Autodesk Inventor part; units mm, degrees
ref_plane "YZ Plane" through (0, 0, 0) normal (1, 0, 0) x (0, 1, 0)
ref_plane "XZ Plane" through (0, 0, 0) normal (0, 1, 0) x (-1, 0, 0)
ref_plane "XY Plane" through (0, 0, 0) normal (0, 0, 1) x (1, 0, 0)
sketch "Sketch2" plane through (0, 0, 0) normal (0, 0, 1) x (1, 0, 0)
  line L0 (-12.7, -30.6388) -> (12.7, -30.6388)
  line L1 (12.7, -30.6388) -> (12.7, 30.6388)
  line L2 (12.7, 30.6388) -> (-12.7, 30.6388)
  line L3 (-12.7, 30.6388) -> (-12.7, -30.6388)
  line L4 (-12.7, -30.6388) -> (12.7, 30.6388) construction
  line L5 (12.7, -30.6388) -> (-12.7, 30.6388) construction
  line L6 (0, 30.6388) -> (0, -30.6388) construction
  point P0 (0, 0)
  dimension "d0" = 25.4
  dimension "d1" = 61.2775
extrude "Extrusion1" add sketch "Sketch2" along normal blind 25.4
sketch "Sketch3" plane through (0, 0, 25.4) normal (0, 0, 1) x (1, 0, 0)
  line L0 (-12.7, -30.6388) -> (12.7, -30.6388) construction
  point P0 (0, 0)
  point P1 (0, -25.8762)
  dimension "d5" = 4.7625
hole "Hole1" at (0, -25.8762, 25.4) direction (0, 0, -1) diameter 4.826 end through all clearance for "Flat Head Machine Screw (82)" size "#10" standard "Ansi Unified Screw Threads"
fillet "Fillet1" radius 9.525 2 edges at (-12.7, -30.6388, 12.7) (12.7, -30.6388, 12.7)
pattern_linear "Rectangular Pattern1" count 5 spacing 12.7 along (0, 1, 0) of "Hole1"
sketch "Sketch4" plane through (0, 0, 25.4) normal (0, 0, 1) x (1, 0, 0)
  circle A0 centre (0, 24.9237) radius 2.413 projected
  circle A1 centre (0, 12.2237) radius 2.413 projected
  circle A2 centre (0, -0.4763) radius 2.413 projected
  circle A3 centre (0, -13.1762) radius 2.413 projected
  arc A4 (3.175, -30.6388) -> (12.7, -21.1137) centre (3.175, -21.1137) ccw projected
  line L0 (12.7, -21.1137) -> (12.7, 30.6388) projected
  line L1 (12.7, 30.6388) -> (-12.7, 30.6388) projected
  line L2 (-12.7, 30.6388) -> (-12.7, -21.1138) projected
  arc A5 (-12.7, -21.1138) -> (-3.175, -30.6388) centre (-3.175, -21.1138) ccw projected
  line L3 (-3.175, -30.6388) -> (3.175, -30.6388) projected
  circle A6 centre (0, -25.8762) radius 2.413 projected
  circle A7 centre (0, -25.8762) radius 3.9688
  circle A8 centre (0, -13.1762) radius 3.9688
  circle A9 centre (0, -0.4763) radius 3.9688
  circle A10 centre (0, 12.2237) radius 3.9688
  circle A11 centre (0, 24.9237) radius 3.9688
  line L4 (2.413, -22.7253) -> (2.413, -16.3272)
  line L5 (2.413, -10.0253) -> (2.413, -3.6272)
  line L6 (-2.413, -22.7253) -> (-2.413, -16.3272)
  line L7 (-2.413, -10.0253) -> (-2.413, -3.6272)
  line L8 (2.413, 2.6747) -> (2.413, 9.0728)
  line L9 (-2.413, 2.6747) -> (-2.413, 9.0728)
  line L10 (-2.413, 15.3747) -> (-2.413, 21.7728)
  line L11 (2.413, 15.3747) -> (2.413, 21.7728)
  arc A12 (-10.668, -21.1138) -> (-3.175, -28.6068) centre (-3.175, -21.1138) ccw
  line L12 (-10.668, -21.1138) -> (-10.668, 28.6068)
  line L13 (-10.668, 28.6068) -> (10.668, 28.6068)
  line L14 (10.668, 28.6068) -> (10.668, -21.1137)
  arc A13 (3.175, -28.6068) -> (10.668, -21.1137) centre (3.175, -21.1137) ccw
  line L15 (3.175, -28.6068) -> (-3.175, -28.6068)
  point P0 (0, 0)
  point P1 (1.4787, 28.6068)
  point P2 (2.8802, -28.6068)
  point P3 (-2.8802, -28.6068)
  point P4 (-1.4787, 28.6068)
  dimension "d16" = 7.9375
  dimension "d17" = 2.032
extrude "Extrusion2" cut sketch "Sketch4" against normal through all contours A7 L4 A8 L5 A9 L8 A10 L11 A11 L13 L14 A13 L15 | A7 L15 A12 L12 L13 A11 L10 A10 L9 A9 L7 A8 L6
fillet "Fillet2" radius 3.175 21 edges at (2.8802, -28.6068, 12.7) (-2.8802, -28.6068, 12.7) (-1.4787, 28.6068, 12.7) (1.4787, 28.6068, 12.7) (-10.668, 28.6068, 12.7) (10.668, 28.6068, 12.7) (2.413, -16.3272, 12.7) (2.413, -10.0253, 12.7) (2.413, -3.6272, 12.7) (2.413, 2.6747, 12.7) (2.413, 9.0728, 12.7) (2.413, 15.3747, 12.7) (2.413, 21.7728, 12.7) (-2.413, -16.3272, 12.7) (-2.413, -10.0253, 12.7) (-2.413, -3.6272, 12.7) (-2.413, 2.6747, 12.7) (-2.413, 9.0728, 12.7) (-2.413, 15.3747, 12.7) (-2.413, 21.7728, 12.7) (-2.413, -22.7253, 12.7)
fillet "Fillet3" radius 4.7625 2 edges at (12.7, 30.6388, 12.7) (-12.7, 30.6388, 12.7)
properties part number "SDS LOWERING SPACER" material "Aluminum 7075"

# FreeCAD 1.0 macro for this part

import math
import FreeCAD as App
import Part
import Sketcher
from FreeCAD import Vector
Q = App.Units.Quantity


def edges_at(feature, points):
    """Names of the edges that pass closest to the given points."""
    edges = feature.Shape.Edges
    near = lambda p: min(range(len(edges)), key=lambda i: edges[i].distToShape(Part.Vertex(*p))[0])
    return sorted({f"Edge{near(p) + 1}" for p in points})


def add_polygon(sketch, points):
    """Adds a closed chain of lines whose ends are joined by coincident constraints."""
    first, n = sketch.GeometryCount, len(points)
    for a, b in zip(points, points[1:] + points[:1]):
        sketch.addGeometry(Part.LineSegment(App.Vector(*a, 0), App.Vector(*b, 0)), False)
    for i in range(n):
        sketch.addConstraint(Sketcher.Constraint("Coincident", first + i, 2, first + (i + 1) % n, 1))

doc = App.newDocument("Part")
body = doc.addObject("PartDesign::Body", "Body")

# Sketch on XY plane
sketch1 = doc.addObject("Sketcher::SketchObject", "Sketch")
body.addObject(sketch1)
sketch1.AttachmentSupport = (doc.XY_Plane, [""])
sketch1.MapMode = "FlatFace"
add_polygon(sketch1, [(-12.7, 30.6388), (-12.7, -30.6388), (12.7, -30.6388), (12.7, 30.6388)])  # lines 0-3
sketch1.addConstraint([
    Sketcher.Constraint("Vertical", 0),
    Sketcher.Constraint("Horizontal", 1),
    Sketcher.Constraint("Vertical", 2),
    Sketcher.Constraint("Horizontal", 3),
    Sketcher.Constraint("Symmetric", 0, 2, 2, 2, -1, 1),
    Sketcher.Constraint("DistanceX", 1, 1, 1, 2, Q("1 in")),
    Sketcher.Constraint("DistanceY", 0, 2, 0, 1, Q("2.4125 in")),
])
pad1 = doc.addObject("PartDesign::Pad", "Pad")
body.addObject(pad1)
pad1.Profile = sketch1
pad1.Length = Q("1 in")

# Sketch on XY plane
sketch2 = doc.addObject("Sketcher::SketchObject", "Sketch001")
body.addObject(sketch2)
sketch2.AttachmentSupport = (doc.XY_Plane, [""])
sketch2.MapMode = "FlatFace"
sketch2.AttachmentOffset = App.Placement(Vector(0, 0, 1 * 25.4), App.Rotation())
sketch2.addGeometry(Part.Circle(Vector(0, -25.8762, 0), Vector(0, 0, 1), 2.413), False)
sketch2.addConstraint([
    Sketcher.Constraint("PointOnObject", 0, 3, -2),
    Sketcher.Constraint("Diameter", 0, Q("0.19 in")),
    Sketcher.Constraint("DistanceY", 0, 3, -1, 1, Q("25.8762 mm")),
])
doc.recompute()
hole = doc.addObject("PartDesign::Hole", "Hole")
body.addObject(hole)
hole.Profile = sketch2
hole.ThreadType = "None"
hole.Diameter = Q("0.19 in")
hole.DepthType = "ThroughAll"
doc.recompute()

fillet = doc.addObject("PartDesign::Fillet", "Fillet")
body.addObject(fillet)
fillet.Base = (hole, edges_at(hole, [(-12.7, -30.639, 12.7), (12.7, -30.639, 12.7)]))
fillet.Radius = Q("0.375 in")
doc.recompute()

linearpattern = doc.addObject("PartDesign::LinearPattern", "LinearPattern")
body.addObject(linearpattern)
linearpattern.Originals = [hole]
linearpattern.Direction = (doc.Y_Axis, [""])
linearpattern.Mode = "offset"
linearpattern.Offset = Q("0.5 in")
linearpattern.Occurrences = 5
body.Tip = linearpattern

# Sketch on XY plane
sketch3 = doc.addObject("Sketcher::SketchObject", "Sketch002")
body.addObject(sketch3)
sketch3.AttachmentSupport = (doc.XY_Plane, [""])
sketch3.MapMode = "FlatFace"
sketch3.AttachmentOffset = App.Placement(Vector(0, 0, 1 * 25.4), App.Rotation())
sketch3.addGeometry([
    Part.ArcOfCircle(Part.Circle(Vector(0, -25.8762, 0), Vector(0, 0, 1), 3.9688), math.radians(-43.473304), math.radians(52.55464)),  # 0
    Part.LineSegment(Vector(2.880138, -28.6068, 0), Vector(3.175, -28.6068, 0)),  # 1
    Part.ArcOfCircle(Part.Circle(Vector(3.175, -21.1137, 0), Vector(0, 0, 1), 7.4931), math.radians(-90), math.radians(0)),  # 2
    Part.LineSegment(Vector(10.668, -21.1137, 0), Vector(10.668, 28.6068, 0)),  # 3
    Part.LineSegment(Vector(10.668, 28.6068, 0), Vector(1.478563, 28.6068, 0)),  # 4
    Part.ArcOfCircle(Part.Circle(Vector(0, 24.9237, 0), Vector(0, 0, 1), 3.9688), math.radians(-52.55464), math.radians(68.127244)),  # 5
    Part.LineSegment(Vector(2.413, 21.7728, 0), Vector(2.413, 15.3747, 0)),  # 6
    Part.ArcOfCircle(Part.Circle(Vector(0, 12.2237, 0), Vector(0, 0, 1), 3.9688), math.radians(-52.55464), math.radians(52.555518)),  # 7
    Part.LineSegment(Vector(2.413, 9.0728, 0), Vector(2.413, 2.6747, 0)),  # 8
    Part.ArcOfCircle(Part.Circle(Vector(0, -0.4763, 0), Vector(0, 0, 1), 3.9688), math.radians(-52.55464), math.radians(52.555518)),  # 9
    Part.LineSegment(Vector(2.413, -3.6272, 0), Vector(2.413, -10.0253, 0)),  # 10
    Part.ArcOfCircle(Part.Circle(Vector(0, -13.1762, 0), Vector(0, 0, 1), 3.9688), math.radians(-52.555518), math.radians(52.55464)),  # 11
    Part.LineSegment(Vector(2.413, -16.3272, 0), Vector(2.413, -22.7253, 0)),  # 12
    Part.ArcOfCircle(Part.Circle(Vector(0, -25.8762, 0), Vector(0, 0, 1), 3.9688), math.radians(127.44536), math.radians(223.473304)),  # 13
    Part.LineSegment(Vector(-2.413, -22.7253, 0), Vector(-2.413, -16.3272, 0)),  # 14
    Part.ArcOfCircle(Part.Circle(Vector(0, -13.1762, 0), Vector(0, 0, 1), 3.9688), math.radians(127.44536), math.radians(232.555518)),  # 15
    Part.LineSegment(Vector(-2.413, -10.0253, 0), Vector(-2.413, -3.6272, 0)),  # 16
    Part.ArcOfCircle(Part.Circle(Vector(0, -0.4763, 0), Vector(0, 0, 1), 3.9688), math.radians(127.444482), math.radians(232.55464)),  # 17
    Part.LineSegment(Vector(-2.413, 2.6747, 0), Vector(-2.413, 9.0728, 0)),  # 18
    Part.ArcOfCircle(Part.Circle(Vector(0, 12.2237, 0), Vector(0, 0, 1), 3.9688), math.radians(127.444482), math.radians(232.55464)),  # 19
    Part.LineSegment(Vector(-2.413, 15.3747, 0), Vector(-2.413, 21.7728, 0)),  # 20
    Part.ArcOfCircle(Part.Circle(Vector(0, 24.9237, 0), Vector(0, 0, 1), 3.9688), math.radians(111.872756), math.radians(232.55464)),  # 21
    Part.LineSegment(Vector(-1.478563, 28.6068, 0), Vector(-10.668, 28.6068, 0)),  # 22
    Part.LineSegment(Vector(-10.668, 28.6068, 0), Vector(-10.668, -21.1138, 0)),  # 23
    Part.ArcOfCircle(Part.Circle(Vector(-3.175, -21.1138, 0), Vector(0, 0, 1), 7.493), math.radians(180), math.radians(270)),  # 24
    Part.LineSegment(Vector(-3.175, -28.6068, 0), Vector(-2.880138, -28.6068, 0)),  # 25
], False)
sketch3.addConstraint([
    Sketcher.Constraint("Coincident", 0, 1, 1, 1),
    Sketcher.Constraint("Tangent", 1, 2, 2, 1),
    Sketcher.Constraint("Tangent", 2, 2, 3, 1),
    Sketcher.Constraint("Coincident", 3, 2, 4, 1),
    Sketcher.Constraint("Coincident", 4, 2, 5, 2),
    Sketcher.Constraint("Coincident", 5, 1, 6, 1),
    Sketcher.Constraint("Coincident", 6, 2, 7, 2),
    Sketcher.Constraint("Coincident", 7, 1, 8, 1),
    Sketcher.Constraint("Coincident", 8, 2, 9, 2),
    Sketcher.Constraint("Coincident", 9, 1, 10, 1),
    Sketcher.Constraint("Coincident", 10, 2, 11, 2),
    Sketcher.Constraint("Coincident", 11, 1, 12, 1),
    Sketcher.Constraint("Coincident", 12, 2, 0, 2),
    Sketcher.Constraint("Coincident", 13, 1, 14, 1),
    Sketcher.Constraint("Coincident", 14, 2, 15, 2),
    Sketcher.Constraint("Coincident", 15, 1, 16, 1),
    Sketcher.Constraint("Coincident", 16, 2, 17, 2),
    Sketcher.Constraint("Coincident", 17, 1, 18, 1),
    Sketcher.Constraint("Coincident", 18, 2, 19, 2),
    Sketcher.Constraint("Coincident", 19, 1, 20, 1),
    Sketcher.Constraint("Coincident", 20, 2, 21, 2),
    Sketcher.Constraint("Coincident", 21, 1, 22, 1),
    Sketcher.Constraint("Coincident", 22, 2, 23, 1),
    Sketcher.Constraint("Tangent", 23, 2, 24, 1),
    Sketcher.Constraint("Tangent", 24, 2, 25, 1),
    Sketcher.Constraint("Coincident", 25, 2, 13, 2),
    Sketcher.Constraint("Horizontal", 1),
    Sketcher.Constraint("Vertical", 3),
    Sketcher.Constraint("Horizontal", 4),
    Sketcher.Constraint("Vertical", 6),
    Sketcher.Constraint("Vertical", 8),
    Sketcher.Constraint("Vertical", 10),
    Sketcher.Constraint("Vertical", 12),
    Sketcher.Constraint("Vertical", 14),
    Sketcher.Constraint("Vertical", 16),
    Sketcher.Constraint("Vertical", 18),
    Sketcher.Constraint("Vertical", 20),
    Sketcher.Constraint("Horizontal", 22),
    Sketcher.Constraint("Vertical", 23),
    Sketcher.Constraint("Horizontal", 25),
    Sketcher.Constraint("Coincident", 13, 3, 0, 3),
    Sketcher.Constraint("Coincident", 15, 3, 11, 3),
    Sketcher.Constraint("Coincident", 17, 3, 9, 3),
    Sketcher.Constraint("Coincident", 19, 3, 7, 3),
    Sketcher.Constraint("Coincident", 21, 3, 5, 3),
    Sketcher.Constraint("Equal", 0, 5),
    Sketcher.Constraint("Equal", 5, 7),
    Sketcher.Constraint("Equal", 7, 9),
    Sketcher.Constraint("Equal", 9, 11),
    Sketcher.Constraint("Equal", 11, 13),
    Sketcher.Constraint("Equal", 13, 15),
    Sketcher.Constraint("Equal", 15, 17),
    Sketcher.Constraint("Equal", 17, 19),
    Sketcher.Constraint("Equal", 19, 21),
    Sketcher.Constraint("Equal", 2, 24),
    Sketcher.Constraint("Symmetric", 2, 3, 24, 3, -2),
    Sketcher.Constraint("Symmetric", 12, 2, 13, 1, -2),
    Sketcher.Constraint("Symmetric", 10, 2, 15, 1, -2),
    Sketcher.Constraint("Symmetric", 8, 2, 17, 1, -2),
    Sketcher.Constraint("Symmetric", 6, 2, 19, 1, -2),
    Sketcher.Constraint("Symmetric", 4, 2, 21, 1, -2),
    Sketcher.Constraint("Vertical", 6, 2, 7, 1),
    Sketcher.Constraint("Vertical", 8, 2, 9, 1),
    Sketcher.Constraint("Vertical", 10, 2, 11, 1),
    Sketcher.Constraint("Equal", 6, 8),
    Sketcher.Constraint("Equal", 8, 10),
    Sketcher.Constraint("Equal", 10, 12),
    Sketcher.Constraint("Radius", 0, Q("0.156252 in")),
    Sketcher.Constraint("Radius", 2, Q("0.295 in")),
    Sketcher.Constraint("DistanceY", 0, 3, 5, 3, Q("2 in")),
    Sketcher.Constraint("DistanceY", 2, 3, 11, 3, Q("0.3125 in")),
    Sketcher.Constraint("DistanceX", -1, 1, 2, 2, Q("0.42 in")),
    Sketcher.Constraint("DistanceX", 11, 1, 2, 3, Q("0.03 in")),
    Sketcher.Constraint("DistanceX", 4, 2, 4, 1, Q("0.3618 in")),
    Sketcher.Constraint("DistanceY", -1, 1, 5, 1, Q("0.8572 in")),
])
pocket1 = doc.addObject("PartDesign::Pocket", "Pocket")
body.addObject(pocket1)
pocket1.Profile = sketch3
pocket1.Type = "ThroughAll"
doc.recompute()

fillet2 = doc.addObject("PartDesign::Fillet", "Fillet001")
body.addObject(fillet2)
fillet2.Base = (pocket1, edges_at(pocket1, [
    (2.88, -28.607, 12.7),
    (-2.88, -28.607, 12.7),
    (-1.479, 28.607, 12.7),
    (1.479, 28.607, 12.7),
    (-10.668, 28.607, 12.7),
    (10.668, 28.607, 12.7),
    (2.413, -16.327, 12.7),
    (2.413, -10.025, 12.7),
    (2.413, -3.627, 12.7),
    (2.413, 2.675, 12.7),
    (2.413, 9.073, 12.7),
    (2.413, 15.375, 12.7),
    (2.413, 21.773, 12.7),
    (-2.413, -16.327, 12.7),
    (-2.413, -10.025, 12.7),
    (-2.413, -3.627, 12.7),
    (-2.413, 2.675, 12.7),
    (-2.413, 9.073, 12.7),
    (-2.413, 15.375, 12.7),
    (-2.413, 21.773, 12.7),
    (-2.413, -22.725, 12.7),
]))
fillet2.Radius = Q("0.125 in")
doc.recompute()

fillet3 = doc.addObject("PartDesign::Fillet", "Fillet002")
body.addObject(fillet3)
fillet3.Base = (fillet2, edges_at(fillet2, [(12.7, 30.639, 12.7), (-12.7, 30.639, 12.7)]))
fillet3.Radius = Q("0.1875 in")

doc.recompute()
